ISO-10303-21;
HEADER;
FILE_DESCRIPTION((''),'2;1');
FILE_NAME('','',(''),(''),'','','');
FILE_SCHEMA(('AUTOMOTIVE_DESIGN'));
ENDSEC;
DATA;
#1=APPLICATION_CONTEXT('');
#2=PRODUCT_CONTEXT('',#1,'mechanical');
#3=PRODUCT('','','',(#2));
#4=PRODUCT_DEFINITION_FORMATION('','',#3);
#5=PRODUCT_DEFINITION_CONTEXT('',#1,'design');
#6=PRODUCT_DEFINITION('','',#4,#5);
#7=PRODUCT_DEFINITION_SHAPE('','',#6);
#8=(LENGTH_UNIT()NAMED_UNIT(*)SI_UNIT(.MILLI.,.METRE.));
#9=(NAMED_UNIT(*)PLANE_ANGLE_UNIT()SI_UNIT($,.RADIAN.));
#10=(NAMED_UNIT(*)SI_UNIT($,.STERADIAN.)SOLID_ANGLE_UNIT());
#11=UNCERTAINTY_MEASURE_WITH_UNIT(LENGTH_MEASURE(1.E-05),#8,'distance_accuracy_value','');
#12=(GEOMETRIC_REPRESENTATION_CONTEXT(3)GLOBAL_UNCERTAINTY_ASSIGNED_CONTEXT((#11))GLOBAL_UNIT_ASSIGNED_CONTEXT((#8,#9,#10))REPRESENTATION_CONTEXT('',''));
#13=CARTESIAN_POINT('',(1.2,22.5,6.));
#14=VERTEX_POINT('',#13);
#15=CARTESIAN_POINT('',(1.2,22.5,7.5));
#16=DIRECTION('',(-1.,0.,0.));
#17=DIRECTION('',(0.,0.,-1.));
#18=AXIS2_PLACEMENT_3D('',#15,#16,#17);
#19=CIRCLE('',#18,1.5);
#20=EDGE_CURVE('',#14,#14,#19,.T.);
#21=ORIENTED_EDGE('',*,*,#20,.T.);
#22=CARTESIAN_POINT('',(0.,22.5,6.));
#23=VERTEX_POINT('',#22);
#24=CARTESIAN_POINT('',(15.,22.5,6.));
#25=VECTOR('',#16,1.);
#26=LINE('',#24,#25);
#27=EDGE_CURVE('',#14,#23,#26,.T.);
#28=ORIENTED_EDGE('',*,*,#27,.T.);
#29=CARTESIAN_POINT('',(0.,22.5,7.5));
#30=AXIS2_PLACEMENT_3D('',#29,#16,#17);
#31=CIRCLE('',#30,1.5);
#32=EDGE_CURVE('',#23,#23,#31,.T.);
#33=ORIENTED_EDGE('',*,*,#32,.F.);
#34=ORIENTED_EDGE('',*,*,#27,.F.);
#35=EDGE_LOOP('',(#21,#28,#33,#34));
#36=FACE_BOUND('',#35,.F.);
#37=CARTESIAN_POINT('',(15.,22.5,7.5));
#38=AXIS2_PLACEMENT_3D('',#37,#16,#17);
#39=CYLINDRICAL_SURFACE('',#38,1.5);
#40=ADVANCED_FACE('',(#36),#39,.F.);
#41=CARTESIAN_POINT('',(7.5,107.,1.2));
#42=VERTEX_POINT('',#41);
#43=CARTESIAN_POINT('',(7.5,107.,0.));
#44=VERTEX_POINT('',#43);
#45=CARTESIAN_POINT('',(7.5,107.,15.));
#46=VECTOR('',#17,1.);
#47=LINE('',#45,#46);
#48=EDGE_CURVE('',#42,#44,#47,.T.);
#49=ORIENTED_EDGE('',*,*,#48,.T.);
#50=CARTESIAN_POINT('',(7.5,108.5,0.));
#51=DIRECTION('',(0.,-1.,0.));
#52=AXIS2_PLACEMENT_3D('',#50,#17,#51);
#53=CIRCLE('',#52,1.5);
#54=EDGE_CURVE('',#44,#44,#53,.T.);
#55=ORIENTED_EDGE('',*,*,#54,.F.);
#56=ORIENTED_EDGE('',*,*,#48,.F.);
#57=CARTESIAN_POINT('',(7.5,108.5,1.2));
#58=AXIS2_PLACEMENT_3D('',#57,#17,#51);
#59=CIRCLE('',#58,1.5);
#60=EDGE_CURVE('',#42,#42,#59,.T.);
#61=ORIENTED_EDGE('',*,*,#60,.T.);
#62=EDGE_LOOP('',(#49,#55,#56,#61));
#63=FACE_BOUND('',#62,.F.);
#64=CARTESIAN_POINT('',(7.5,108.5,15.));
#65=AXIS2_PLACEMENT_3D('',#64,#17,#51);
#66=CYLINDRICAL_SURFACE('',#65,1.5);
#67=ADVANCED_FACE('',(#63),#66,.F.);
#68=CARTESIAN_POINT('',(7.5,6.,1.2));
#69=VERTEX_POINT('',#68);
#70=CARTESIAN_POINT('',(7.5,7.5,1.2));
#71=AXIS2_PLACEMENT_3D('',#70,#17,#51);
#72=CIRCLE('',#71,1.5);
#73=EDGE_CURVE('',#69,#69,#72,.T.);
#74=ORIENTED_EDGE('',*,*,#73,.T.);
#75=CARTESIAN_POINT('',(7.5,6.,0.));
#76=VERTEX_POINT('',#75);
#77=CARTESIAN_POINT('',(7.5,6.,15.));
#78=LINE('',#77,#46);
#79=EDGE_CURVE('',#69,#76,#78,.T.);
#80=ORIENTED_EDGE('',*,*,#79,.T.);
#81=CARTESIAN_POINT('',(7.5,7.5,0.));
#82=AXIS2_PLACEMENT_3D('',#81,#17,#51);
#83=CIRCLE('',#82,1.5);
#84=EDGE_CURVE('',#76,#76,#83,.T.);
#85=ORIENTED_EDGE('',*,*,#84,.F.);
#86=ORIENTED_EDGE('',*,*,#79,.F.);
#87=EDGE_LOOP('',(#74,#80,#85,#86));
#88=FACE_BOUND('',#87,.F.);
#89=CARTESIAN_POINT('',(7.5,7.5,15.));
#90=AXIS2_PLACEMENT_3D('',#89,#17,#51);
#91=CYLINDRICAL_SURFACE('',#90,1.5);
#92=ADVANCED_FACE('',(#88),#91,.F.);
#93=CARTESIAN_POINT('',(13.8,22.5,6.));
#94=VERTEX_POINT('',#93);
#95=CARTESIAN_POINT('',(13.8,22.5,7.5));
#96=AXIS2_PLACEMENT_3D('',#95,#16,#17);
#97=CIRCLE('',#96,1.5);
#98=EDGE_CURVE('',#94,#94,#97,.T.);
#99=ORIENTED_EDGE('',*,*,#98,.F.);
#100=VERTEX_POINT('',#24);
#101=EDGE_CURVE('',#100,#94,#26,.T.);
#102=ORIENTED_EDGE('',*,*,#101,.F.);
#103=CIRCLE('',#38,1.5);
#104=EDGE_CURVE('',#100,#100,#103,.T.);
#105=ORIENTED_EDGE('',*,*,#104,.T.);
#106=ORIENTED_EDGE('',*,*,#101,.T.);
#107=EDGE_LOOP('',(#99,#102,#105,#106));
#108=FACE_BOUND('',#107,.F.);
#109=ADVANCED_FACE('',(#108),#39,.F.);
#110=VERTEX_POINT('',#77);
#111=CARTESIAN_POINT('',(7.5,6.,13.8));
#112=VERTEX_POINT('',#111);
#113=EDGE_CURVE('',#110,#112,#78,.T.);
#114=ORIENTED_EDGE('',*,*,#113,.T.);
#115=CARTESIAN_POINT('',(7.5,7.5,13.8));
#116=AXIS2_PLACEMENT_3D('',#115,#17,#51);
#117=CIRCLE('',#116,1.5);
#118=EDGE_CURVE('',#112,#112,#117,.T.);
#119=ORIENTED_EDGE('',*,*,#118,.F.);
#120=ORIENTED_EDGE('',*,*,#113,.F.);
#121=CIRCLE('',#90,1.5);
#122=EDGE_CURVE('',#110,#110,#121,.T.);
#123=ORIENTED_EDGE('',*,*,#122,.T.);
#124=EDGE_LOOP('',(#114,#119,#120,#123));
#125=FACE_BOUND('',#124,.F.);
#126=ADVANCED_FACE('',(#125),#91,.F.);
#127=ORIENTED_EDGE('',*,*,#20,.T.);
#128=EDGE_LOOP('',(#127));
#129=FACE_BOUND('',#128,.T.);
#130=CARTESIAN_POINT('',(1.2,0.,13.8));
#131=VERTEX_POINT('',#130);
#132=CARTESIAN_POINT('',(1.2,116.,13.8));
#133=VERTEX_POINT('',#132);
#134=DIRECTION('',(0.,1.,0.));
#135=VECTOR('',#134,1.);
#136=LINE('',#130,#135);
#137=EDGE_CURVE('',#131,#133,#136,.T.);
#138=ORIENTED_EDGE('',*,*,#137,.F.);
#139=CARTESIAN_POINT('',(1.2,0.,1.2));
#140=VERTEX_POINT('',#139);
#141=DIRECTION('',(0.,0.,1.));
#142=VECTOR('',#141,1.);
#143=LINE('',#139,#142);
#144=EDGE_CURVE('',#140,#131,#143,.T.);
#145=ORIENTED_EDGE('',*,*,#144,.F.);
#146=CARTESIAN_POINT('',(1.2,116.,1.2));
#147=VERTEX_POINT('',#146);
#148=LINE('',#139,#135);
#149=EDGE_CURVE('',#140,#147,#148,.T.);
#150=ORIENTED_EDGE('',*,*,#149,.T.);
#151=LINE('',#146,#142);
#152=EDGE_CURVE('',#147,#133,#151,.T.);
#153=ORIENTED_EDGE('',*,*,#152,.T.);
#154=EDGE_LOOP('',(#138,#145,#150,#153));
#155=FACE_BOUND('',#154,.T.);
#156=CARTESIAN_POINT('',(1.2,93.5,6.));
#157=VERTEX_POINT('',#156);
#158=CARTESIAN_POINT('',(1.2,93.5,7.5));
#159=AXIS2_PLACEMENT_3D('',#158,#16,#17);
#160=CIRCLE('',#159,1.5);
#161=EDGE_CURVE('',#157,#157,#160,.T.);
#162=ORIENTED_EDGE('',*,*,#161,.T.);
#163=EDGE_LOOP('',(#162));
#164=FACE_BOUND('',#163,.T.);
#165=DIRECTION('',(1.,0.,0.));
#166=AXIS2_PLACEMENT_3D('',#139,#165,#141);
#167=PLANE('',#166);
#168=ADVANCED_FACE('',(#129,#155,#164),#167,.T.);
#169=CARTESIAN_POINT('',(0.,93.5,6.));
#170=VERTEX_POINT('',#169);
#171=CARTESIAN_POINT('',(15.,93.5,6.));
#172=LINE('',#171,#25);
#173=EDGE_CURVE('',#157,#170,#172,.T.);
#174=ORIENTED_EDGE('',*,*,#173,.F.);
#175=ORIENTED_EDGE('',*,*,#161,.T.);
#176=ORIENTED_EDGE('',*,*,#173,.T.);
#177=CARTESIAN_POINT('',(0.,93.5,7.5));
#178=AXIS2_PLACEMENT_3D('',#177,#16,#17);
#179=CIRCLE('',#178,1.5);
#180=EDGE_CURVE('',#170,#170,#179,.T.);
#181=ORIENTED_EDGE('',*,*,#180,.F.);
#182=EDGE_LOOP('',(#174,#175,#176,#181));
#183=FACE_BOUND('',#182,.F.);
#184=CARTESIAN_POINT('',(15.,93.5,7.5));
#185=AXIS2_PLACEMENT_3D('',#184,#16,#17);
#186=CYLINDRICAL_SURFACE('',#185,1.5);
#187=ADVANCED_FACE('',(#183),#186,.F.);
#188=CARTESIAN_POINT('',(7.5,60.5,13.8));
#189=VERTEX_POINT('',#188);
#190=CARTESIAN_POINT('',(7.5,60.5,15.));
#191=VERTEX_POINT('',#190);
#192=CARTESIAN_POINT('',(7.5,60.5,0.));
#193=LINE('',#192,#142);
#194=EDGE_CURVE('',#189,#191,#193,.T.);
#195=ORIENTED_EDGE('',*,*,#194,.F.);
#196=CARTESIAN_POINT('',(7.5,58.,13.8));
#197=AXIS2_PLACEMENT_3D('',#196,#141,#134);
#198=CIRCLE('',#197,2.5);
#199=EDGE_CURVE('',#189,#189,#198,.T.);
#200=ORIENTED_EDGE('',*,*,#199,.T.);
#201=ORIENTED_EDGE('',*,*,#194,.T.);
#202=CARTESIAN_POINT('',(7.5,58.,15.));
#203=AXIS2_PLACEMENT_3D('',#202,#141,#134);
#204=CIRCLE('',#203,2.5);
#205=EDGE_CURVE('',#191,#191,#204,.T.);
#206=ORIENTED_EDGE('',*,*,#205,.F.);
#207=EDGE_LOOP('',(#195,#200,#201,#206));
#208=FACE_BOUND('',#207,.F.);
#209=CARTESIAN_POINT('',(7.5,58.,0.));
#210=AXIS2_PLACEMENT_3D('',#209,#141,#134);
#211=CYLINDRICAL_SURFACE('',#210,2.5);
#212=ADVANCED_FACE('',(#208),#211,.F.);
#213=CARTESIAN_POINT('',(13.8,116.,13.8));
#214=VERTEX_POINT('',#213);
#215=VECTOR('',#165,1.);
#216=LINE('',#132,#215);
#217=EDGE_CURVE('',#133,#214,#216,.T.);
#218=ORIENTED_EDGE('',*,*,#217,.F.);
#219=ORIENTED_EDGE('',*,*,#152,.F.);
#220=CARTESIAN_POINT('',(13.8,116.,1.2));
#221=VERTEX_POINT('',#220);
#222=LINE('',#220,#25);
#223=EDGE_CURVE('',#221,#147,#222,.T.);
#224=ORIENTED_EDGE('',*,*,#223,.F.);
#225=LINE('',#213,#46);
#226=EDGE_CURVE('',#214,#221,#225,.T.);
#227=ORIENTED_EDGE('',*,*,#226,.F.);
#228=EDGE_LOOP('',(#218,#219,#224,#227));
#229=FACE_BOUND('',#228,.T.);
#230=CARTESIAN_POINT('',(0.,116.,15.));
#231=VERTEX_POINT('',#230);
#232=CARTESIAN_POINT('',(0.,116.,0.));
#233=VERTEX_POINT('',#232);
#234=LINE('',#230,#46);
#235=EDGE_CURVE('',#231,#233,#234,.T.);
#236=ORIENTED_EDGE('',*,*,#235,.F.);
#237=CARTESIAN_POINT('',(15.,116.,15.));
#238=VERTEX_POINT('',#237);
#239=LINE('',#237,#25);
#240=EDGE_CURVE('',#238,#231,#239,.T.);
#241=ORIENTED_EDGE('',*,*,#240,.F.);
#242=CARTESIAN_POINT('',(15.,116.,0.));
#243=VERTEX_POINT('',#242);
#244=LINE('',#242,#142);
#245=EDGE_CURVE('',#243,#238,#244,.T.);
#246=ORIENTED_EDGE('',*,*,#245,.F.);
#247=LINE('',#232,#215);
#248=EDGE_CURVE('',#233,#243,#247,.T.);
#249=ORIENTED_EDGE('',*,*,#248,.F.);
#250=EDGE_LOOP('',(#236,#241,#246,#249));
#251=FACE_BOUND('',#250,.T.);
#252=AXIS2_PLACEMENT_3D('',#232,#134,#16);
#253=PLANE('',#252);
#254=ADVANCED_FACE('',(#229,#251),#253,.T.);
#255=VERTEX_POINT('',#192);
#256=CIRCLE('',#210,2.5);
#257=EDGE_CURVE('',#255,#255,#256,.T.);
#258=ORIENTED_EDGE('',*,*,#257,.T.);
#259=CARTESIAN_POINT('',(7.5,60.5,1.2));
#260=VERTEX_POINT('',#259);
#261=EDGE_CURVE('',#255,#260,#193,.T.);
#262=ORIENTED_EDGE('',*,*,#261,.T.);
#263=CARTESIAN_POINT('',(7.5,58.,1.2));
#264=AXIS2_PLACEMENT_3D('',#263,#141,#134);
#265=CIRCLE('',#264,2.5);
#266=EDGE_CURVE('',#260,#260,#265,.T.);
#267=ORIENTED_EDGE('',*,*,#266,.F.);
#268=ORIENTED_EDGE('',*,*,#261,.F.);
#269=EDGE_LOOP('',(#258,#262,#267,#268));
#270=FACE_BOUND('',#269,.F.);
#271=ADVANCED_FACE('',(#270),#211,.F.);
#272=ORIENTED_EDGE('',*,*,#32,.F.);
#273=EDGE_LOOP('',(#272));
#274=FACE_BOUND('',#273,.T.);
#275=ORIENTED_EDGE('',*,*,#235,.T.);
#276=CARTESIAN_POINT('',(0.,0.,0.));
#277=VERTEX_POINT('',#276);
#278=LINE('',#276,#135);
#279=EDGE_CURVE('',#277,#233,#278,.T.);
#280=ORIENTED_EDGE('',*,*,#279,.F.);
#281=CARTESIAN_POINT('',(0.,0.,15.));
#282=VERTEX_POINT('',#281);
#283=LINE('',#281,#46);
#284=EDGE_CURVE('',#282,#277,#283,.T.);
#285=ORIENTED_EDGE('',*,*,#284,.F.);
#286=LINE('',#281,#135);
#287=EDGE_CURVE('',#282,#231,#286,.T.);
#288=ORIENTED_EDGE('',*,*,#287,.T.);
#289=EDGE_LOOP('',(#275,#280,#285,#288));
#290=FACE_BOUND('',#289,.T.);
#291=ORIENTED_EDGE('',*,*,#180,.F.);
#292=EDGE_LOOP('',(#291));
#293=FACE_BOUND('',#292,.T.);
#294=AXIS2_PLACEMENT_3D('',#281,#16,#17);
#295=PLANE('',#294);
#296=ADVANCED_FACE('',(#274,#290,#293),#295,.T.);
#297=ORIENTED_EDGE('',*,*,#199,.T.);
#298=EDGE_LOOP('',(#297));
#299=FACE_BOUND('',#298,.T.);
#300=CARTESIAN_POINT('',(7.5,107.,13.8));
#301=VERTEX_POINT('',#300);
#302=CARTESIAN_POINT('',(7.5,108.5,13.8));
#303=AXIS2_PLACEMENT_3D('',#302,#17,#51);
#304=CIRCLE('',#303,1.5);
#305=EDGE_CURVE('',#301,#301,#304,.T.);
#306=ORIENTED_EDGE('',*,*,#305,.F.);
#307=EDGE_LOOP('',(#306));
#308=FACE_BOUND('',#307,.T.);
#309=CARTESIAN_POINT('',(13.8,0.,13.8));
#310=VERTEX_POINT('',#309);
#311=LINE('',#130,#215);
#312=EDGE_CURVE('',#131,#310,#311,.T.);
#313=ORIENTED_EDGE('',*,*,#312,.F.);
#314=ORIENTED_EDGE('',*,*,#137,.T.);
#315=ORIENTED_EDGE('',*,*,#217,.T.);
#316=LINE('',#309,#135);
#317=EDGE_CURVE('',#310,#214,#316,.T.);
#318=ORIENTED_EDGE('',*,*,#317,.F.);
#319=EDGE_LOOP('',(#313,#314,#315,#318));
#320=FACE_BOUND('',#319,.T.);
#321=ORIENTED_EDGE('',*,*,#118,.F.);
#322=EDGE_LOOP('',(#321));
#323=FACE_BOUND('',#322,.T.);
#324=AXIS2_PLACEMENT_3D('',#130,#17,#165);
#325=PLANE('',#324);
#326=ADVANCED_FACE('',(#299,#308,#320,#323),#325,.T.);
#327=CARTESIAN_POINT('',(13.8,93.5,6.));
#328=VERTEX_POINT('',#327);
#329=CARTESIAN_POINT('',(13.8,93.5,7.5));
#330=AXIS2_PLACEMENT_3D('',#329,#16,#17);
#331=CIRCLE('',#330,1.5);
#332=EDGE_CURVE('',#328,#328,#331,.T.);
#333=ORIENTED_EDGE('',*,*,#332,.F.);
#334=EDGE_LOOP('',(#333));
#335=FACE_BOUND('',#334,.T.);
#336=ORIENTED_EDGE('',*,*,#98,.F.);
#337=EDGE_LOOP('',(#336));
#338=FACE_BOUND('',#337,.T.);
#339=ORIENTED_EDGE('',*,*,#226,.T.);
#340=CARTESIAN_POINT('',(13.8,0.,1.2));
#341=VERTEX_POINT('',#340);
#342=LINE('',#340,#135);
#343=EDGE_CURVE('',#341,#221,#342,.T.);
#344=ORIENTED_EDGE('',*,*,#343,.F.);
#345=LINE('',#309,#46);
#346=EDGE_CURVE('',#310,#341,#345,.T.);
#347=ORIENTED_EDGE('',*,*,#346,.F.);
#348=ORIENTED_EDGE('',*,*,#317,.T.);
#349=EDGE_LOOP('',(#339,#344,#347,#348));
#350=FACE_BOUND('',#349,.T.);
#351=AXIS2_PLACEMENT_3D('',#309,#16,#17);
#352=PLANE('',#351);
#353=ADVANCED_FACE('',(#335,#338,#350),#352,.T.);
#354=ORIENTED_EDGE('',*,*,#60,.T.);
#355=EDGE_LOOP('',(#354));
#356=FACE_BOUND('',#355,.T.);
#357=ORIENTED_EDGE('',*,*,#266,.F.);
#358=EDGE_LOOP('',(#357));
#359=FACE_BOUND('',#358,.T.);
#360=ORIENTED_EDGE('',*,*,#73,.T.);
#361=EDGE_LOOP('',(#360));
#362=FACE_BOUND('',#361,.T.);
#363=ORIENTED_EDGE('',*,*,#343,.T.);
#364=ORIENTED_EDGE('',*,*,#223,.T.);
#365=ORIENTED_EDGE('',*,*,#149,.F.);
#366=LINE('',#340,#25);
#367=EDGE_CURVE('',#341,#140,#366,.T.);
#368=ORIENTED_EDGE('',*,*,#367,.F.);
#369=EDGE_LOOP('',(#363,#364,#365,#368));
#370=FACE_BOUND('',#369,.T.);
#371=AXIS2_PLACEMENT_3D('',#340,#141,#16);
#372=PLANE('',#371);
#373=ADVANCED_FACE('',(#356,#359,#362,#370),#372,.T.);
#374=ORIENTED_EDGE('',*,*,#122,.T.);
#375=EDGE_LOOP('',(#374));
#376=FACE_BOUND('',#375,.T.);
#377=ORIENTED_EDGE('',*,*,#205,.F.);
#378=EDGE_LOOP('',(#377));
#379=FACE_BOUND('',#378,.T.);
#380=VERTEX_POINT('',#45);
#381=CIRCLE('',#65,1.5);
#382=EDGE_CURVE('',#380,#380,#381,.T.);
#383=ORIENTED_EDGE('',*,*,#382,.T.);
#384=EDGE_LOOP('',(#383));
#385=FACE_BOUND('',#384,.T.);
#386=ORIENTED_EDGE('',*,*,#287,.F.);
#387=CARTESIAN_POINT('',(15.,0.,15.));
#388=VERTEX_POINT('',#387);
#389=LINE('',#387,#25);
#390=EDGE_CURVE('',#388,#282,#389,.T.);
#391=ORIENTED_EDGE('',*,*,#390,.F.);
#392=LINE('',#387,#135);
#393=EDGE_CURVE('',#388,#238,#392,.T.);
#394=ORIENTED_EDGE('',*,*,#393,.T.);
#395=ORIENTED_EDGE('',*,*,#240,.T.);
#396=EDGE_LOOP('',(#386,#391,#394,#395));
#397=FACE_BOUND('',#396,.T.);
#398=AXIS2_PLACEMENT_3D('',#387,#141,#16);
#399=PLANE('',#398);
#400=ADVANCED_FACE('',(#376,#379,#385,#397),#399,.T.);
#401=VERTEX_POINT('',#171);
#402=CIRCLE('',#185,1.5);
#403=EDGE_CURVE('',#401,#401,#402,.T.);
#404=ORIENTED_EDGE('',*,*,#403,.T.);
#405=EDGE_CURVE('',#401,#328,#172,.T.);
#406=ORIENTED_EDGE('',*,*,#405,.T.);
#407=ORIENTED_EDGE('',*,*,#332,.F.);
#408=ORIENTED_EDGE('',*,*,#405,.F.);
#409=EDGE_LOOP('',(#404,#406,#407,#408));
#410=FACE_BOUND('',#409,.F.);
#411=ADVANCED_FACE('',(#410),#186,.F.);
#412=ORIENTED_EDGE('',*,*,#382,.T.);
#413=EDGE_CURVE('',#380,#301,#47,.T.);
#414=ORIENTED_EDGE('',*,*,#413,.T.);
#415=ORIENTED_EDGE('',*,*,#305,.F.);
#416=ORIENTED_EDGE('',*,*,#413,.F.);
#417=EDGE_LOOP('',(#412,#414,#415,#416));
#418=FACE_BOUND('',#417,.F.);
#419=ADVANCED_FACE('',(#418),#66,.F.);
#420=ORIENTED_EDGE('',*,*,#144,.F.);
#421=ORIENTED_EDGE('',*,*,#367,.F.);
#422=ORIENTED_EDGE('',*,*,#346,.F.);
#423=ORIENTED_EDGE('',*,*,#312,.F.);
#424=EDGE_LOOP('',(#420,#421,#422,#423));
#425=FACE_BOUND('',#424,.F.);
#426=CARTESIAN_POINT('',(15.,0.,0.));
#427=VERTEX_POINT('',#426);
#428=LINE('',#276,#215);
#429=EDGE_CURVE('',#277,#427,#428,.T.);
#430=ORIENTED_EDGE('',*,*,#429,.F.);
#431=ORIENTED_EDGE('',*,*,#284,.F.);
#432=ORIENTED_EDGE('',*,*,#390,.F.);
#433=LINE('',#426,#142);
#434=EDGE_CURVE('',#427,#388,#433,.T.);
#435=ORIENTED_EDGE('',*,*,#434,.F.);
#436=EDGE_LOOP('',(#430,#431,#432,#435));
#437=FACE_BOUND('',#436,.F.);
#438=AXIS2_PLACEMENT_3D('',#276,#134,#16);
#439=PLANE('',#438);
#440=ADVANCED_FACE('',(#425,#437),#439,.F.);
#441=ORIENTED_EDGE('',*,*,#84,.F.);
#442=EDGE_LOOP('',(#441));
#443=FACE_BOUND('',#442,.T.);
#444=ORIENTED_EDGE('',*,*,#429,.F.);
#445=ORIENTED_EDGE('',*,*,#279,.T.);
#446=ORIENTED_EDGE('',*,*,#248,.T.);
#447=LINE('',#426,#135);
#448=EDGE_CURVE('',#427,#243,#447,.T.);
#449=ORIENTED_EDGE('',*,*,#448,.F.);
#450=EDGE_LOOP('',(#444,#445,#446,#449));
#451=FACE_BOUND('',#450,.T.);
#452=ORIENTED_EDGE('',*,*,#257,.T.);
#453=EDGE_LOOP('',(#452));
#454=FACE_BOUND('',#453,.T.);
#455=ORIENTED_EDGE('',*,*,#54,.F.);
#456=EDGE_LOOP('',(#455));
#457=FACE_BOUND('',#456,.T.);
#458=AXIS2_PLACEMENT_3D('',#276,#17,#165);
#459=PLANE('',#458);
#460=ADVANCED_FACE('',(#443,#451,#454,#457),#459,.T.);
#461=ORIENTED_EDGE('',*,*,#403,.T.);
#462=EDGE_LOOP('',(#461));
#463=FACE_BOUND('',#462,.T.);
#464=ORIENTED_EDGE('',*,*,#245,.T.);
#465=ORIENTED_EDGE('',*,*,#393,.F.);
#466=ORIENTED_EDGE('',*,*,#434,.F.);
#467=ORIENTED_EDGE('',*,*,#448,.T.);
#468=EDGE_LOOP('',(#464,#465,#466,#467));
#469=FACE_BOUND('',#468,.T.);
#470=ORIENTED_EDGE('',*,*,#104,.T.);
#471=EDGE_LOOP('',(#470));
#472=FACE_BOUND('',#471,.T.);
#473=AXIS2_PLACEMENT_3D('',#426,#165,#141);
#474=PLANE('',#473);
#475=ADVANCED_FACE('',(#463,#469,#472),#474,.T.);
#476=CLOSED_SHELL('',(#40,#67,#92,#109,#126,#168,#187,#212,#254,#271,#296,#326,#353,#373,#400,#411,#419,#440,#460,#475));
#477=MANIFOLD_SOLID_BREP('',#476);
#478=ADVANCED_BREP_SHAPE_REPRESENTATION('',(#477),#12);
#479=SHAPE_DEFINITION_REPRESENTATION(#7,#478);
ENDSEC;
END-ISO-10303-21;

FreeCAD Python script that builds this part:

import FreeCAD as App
import Part
import Sketcher

V = App.Vector


def add_polygon(sketch, points):
    """Adds a closed chain of lines whose ends are joined by coincident constraints."""
    first, n = sketch.GeometryCount, len(points)
    for a, b in zip(points, points[1:] + points[:1]):
        sketch.addGeometry(Part.LineSegment(App.Vector(*a, 0), App.Vector(*b, 0)), False)
    for i in range(n):
        sketch.addConstraint(Sketcher.Constraint("Coincident", first + i, 2, first + (i + 1) % n, 1))

doc = App.newDocument("Part")
body = doc.addObject("PartDesign::Body", "Body")

sketch1 = body.newObject("Sketcher::SketchObject", "Sketch")
sketch1.AttachmentSupport = (doc.getObject("XZ_Plane"), [""])
sketch1.MapMode = "FlatFace"
add_polygon(sketch1, [(15, 0), (0, 0), (0, 15), (15, 15)])
add_polygon(sketch1, [(13.8, 13.8), (1.2, 13.8), (1.2, 1.2), (13.8, 1.2)])
sketch1.addConstraint([
    Sketcher.Constraint("Horizontal", 0),
    Sketcher.Constraint("Vertical", 1),
    Sketcher.Constraint("Horizontal", 2),
    Sketcher.Constraint("Vertical", 3),
    Sketcher.Constraint("Horizontal", 4),
    Sketcher.Constraint("Vertical", 5),
    Sketcher.Constraint("Horizontal", 6),
    Sketcher.Constraint("Vertical", 7),
    Sketcher.Constraint("Coincident", 0, 2, -1, 1),
    Sketcher.Constraint("Equal", 2, 1),
    Sketcher.Constraint("Equal", 6, 5),
    Sketcher.Constraint("DistanceX", 0, 2, 0, 1, 15.0),
    Sketcher.Constraint("DistanceX", -1, 1, 4, 2, 1.2),
    Sketcher.Constraint("DistanceY", -1, 1, 5, 2, 1.2),
    Sketcher.Constraint("DistanceY", 4, 2, 1, 2, 1.2),
])
pad1 = body.newObject("PartDesign::Pad", "Pad")
pad1.Profile = sketch1
pad1.Length = 116
pad1.Reversed = True

sketch2 = body.newObject("Sketcher::SketchObject", "Sketch001")
sketch2.AttachmentSupport = (doc.getObject("XY_Plane"), [""])
sketch2.MapMode = "FlatFace"
sketch2.AttachmentOffset = App.Placement(V(0, 0, 15), App.Rotation())
sketch2.addGeometry([
    Part.Circle(V(7.5, 108.5, 0), V(0, 0, 1), 1.5),
    Part.Circle(V(7.5, 7.5, 0), V(0, 0, 1), 1.5),
], False)
sketch2.addConstraint([
    Sketcher.Constraint("Equal", 0, 1),
    Sketcher.Constraint("Vertical", 0, 3, 1, 3),
    Sketcher.Constraint("Diameter", 0, 3.0),
    Sketcher.Constraint("DistanceY", 1, 3, 0, 3, 101.0),
    Sketcher.Constraint("DistanceX", -1, 1, 0, 3, 7.5),
    Sketcher.Constraint("DistanceY", -1, 1, 0, 3, 108.5),
])
doc.recompute()
hole = body.newObject("PartDesign::Hole", "Hole")
hole.Profile = sketch2
hole.ThreadType = "None"
hole.Diameter = 3
hole.DepthType = "ThroughAll"

sketch3 = body.newObject("Sketcher::SketchObject", "Sketch002")
sketch3.AttachmentSupport = (doc.getObject("YZ_Plane"), [""])
sketch3.MapMode = "FlatFace"
sketch3.AttachmentOffset = App.Placement(V(0, 0, 15), App.Rotation())
sketch3.addGeometry([
    Part.Circle(V(22.5, 7.5, 0), V(0, 0, 1), 1.5),
    Part.Circle(V(93.5, 7.5, 0), V(0, 0, 1), 1.5),
], False)
sketch3.addConstraint([
    Sketcher.Constraint("Equal", 0, 1),
    Sketcher.Constraint("Horizontal", 0, 3, 1, 3),
    Sketcher.Constraint("Diameter", 0, 3.0),
    Sketcher.Constraint("DistanceX", 0, 3, 1, 3, 71.0),
    Sketcher.Constraint("DistanceX", -1, 1, 0, 3, 22.5),
    Sketcher.Constraint("DistanceY", -1, 1, 0, 3, 7.5),
])
doc.recompute()
hole2 = body.newObject("PartDesign::Hole", "Hole001")
hole2.Profile = sketch3
hole2.ThreadType = "None"
hole2.Diameter = 3
hole2.DepthType = "ThroughAll"

sketch4 = body.newObject("Sketcher::SketchObject", "Sketch003")
sketch4.AttachmentSupport = (doc.getObject("XY_Plane"), [""])
sketch4.MapMode = "FlatFace"
sketch4.addGeometry(Part.Circle(V(7.5, 58, 0), V(0, 0, 1), 2.5), False)
sketch4.addConstraint([
    Sketcher.Constraint("Diameter", 0, 5.0),
    Sketcher.Constraint("DistanceY", -1, 1, 0, 3, 58.0),
    Sketcher.Constraint("DistanceX", -1, 1, 0, 3, 7.5),
])
doc.recompute()
hole3 = body.newObject("PartDesign::Hole", "Hole002")
hole3.Profile = sketch4
hole3.ThreadType = "None"
hole3.Diameter = 5
hole3.DepthType = "ThroughAll"
hole3.Reversed = True

doc.recompute()
